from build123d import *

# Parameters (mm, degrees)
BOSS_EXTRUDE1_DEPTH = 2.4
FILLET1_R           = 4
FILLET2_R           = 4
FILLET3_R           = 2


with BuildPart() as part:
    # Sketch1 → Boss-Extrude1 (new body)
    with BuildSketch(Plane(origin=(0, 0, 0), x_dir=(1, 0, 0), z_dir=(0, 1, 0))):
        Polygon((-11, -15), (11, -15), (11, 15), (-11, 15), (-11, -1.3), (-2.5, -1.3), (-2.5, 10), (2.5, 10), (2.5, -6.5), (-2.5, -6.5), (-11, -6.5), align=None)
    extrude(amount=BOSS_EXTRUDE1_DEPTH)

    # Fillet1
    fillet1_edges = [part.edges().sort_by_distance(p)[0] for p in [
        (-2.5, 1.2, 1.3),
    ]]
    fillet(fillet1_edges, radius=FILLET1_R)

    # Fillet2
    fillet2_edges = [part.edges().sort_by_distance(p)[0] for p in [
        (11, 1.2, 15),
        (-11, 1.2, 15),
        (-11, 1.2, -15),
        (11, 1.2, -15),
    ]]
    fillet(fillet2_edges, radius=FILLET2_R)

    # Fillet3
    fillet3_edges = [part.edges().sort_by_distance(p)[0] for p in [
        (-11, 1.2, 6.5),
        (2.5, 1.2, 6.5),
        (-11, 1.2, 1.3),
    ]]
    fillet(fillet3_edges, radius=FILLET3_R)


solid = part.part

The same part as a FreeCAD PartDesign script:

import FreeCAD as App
import Part
import Sketcher
Q = App.Units.Quantity


def edges_at(feature, points):
    """Names of the edges that pass closest to the given points."""
    edges = feature.Shape.Edges
    near = lambda p: min(range(len(edges)), key=lambda i: edges[i].distToShape(Part.Vertex(*p))[0])
    return sorted({f"Edge{near(p) + 1}" for p in points})


def add_polygon(sketch, points):
    """Adds a closed chain of lines whose ends are joined by coincident constraints."""
    first, n = sketch.GeometryCount, len(points)
    for a, b in zip(points, points[1:] + points[:1]):
        sketch.addGeometry(Part.LineSegment(App.Vector(*a, 0), App.Vector(*b, 0)), False)
    for i in range(n):
        sketch.addConstraint(Sketcher.Constraint("Coincident", first + i, 2, first + (i + 1) % n, 1))

doc = App.newDocument("Part")
body = doc.addObject("PartDesign::Body", "Body")

sketch1 = body.newObject("Sketcher::SketchObject", "Sketch")
sketch1.AttachmentSupport = (doc.getObject("XZ_Plane"), [""])
sketch1.MapMode = "FlatFace"
add_polygon(sketch1, [(-11, 15), (11, 15), (11, -15), (-11, -15), (-11, 1.3), (-2.5, 1.3), (-2.5, -10), (2.5, -10), (2.5, 6.5), (-11, 6.5)])
sketch1.addConstraint([
    Sketcher.Constraint("Horizontal", 0),
    Sketcher.Constraint("Vertical", 1),
    Sketcher.Constraint("Horizontal", 2),
    Sketcher.Constraint("Vertical", 3),
    Sketcher.Constraint("Horizontal", 4),
    Sketcher.Constraint("Vertical", 5),
    Sketcher.Constraint("Horizontal", 6),
    Sketcher.Constraint("Vertical", 7),
    Sketcher.Constraint("Horizontal", 8),
    Sketcher.Constraint("Vertical", 9),
    Sketcher.Constraint("Symmetric", 0, 2, 2, 2, -1, 1),
    Sketcher.Constraint("Vertical", 3, 2, 8, 2),
    Sketcher.Constraint("Equal", 4, 9),
    Sketcher.Constraint("DistanceX", 0, 1, 0, 2, Q("22 mm")),
    Sketcher.Constraint("DistanceX", 6, 1, 6, 2, Q("5 mm")),
    Sketcher.Constraint("DistanceY", 1, 2, 1, 1, Q("30 mm")),
    Sketcher.Constraint("DistanceX", 4, 1, 4, 2, Q("8.5 mm")),
    Sketcher.Constraint("DistanceY", 3, 1, 3, 2, Q("16.3 mm")),
    Sketcher.Constraint("DistanceY", 5, 2, 5, 1, Q("11.3 mm")),
])
pad1 = body.newObject("PartDesign::Pad", "Pad")
pad1.Profile = sketch1
pad1.Length = 2.4
pad1.Reversed = True
doc.recompute()

fillet = body.newObject("PartDesign::Fillet", "Fillet")
fillet.Base = (pad1, edges_at(pad1, [(-2.5, 1.2, 1.3)]))
fillet.Radius = 4
doc.recompute()

fillet2 = body.newObject("PartDesign::Fillet", "Fillet001")
fillet2.Base = (fillet, edges_at(fillet, [
    (11, 1.2, 15),
    (-11, 1.2, 15),
    (-11, 1.2, -15),
    (11, 1.2, -15),
]))
fillet2.Radius = 4
doc.recompute()

fillet3 = body.newObject("PartDesign::Fillet", "Fillet002")
fillet3.Base = (fillet2, edges_at(fillet2, [(-11, 1.2, 6.5), (2.5, 1.2, 6.5), (-11, 1.2, 1.3)]))
fillet3.Radius = 2

doc.recompute()
